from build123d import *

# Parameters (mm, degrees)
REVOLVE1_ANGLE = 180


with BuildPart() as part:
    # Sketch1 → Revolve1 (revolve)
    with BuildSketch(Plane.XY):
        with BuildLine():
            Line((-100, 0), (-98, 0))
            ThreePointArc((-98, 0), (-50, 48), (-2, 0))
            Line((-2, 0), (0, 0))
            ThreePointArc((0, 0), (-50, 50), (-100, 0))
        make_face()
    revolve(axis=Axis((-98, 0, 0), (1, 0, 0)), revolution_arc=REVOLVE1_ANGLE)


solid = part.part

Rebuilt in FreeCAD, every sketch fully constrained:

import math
import FreeCAD as App
import Part
import Sketcher
Q = App.Units.Quantity

doc = App.newDocument("Part")
body = doc.addObject("PartDesign::Body", "Body")

# Sketch on XY plane
sketch1 = body.newObject("Sketcher::SketchObject", "Sketch")
sketch1.AttachmentSupport = (doc.getObject("XY_Plane"), [""])
sketch1.MapMode = "FlatFace"
sketch1.addGeometry(Part.LineSegment(App.Vector(-100, 0, 0), App.Vector(-98, 0, 0)), False)
sketch1.addGeometry(Part.ArcOfCircle(Part.Circle(App.Vector(-50, 0, 0), App.Vector(0, 0, 1), 48), math.radians(0), math.radians(180)), False)
sketch1.addGeometry(Part.LineSegment(App.Vector(-2, 0, 0), App.Vector(0, 0, 0)), False)
sketch1.addGeometry(Part.ArcOfCircle(Part.Circle(App.Vector(-50, 0, 0), App.Vector(0, 0, 1), 50), math.radians(0), math.radians(180)), False)
sketch1.addConstraint(Sketcher.Constraint("Coincident", 0, 2, 1, 2))
sketch1.addConstraint(Sketcher.Constraint("Coincident", 1, 1, 2, 1))
sketch1.addConstraint(Sketcher.Constraint("Coincident", 2, 2, 3, 1))
sketch1.addConstraint(Sketcher.Constraint("Coincident", 3, 2, 0, 1))
sketch1.addConstraint(Sketcher.Constraint("Horizontal", 0))
sketch1.addConstraint(Sketcher.Constraint("Horizontal", 2))
sketch1.addConstraint(Sketcher.Constraint("Coincident", 2, 2, -1, 1))
sketch1.addConstraint(Sketcher.Constraint("Coincident", 3, 3, 1, 3))
sketch1.addConstraint(Sketcher.Constraint("PointOnObject", 1, 3, -1))
sketch1.addConstraint(Sketcher.Constraint("PointOnObject", 0, 2, -1))
sketch1.addConstraint(Sketcher.Constraint("Radius", 1, Q("48 mm")))
sketch1.addConstraint(Sketcher.Constraint("Radius", 3, Q("50 mm")))
revolution = body.newObject("PartDesign::Revolution", "Revolution")
revolution.Profile = sketch1
revolution.ReferenceAxis = (sketch1, ["H_Axis"])
revolution.Angle = 180

doc.recompute()
